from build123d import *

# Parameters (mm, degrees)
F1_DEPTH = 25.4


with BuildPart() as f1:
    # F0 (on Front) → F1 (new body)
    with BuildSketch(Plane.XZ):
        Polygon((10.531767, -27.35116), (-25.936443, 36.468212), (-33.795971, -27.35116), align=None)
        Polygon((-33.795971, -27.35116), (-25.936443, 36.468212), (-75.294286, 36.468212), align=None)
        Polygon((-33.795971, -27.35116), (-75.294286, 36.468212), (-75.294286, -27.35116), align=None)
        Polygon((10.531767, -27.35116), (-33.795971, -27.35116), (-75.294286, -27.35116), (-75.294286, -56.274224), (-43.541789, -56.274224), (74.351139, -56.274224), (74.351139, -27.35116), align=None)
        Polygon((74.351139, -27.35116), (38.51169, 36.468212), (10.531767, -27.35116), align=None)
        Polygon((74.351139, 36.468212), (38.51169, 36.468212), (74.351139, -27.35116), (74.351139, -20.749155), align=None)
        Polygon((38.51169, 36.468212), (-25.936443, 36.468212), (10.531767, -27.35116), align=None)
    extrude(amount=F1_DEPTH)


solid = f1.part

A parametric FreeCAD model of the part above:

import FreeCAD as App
import Part
import Sketcher
from FreeCAD import Vector
Q = App.Units.Quantity


def add_polygon(sketch, points):
    """Adds a closed chain of lines whose ends are joined by coincident constraints."""
    first, n = sketch.GeometryCount, len(points)
    for a, b in zip(points, points[1:] + points[:1]):
        sketch.addGeometry(Part.LineSegment(App.Vector(*a, 0), App.Vector(*b, 0)), False)
    for i in range(n):
        sketch.addConstraint(Sketcher.Constraint("Coincident", first + i, 2, first + (i + 1) % n, 1))

doc = App.newDocument("Part")
body = doc.addObject("PartDesign::Body", "Body")

sketch1 = body.newObject("Sketcher::SketchObject", "Sketch")
sketch1.AttachmentSupport = (doc.getObject("XZ_Plane"), [""])
sketch1.MapMode = "FlatFace"
add_polygon(sketch1, [(-75, 36), (-75, -56), (74, -56), (74, 36)])
sketch1.addConstraint([
    Sketcher.Constraint("Vertical", 0),
    Sketcher.Constraint("Horizontal", 1),
    Sketcher.Constraint("Vertical", 2),
    Sketcher.Constraint("Horizontal", 3),
    Sketcher.Constraint("DistanceX", 1, 1, 1, 2, 149.645425),
    Sketcher.Constraint("DistanceY", 0, 2, 0, 1, 92.742436),
    Sketcher.Constraint("DistanceX", -1, 1, 1, 2, 74.351139),
    Sketcher.Constraint("DistanceY", 0, 2, -1, 1, 56.274224),
])
pad1 = body.newObject("PartDesign::Pad", "Pad")
pad1.Profile = sketch1
pad1.Length = Q("1 in")

doc.recompute()
